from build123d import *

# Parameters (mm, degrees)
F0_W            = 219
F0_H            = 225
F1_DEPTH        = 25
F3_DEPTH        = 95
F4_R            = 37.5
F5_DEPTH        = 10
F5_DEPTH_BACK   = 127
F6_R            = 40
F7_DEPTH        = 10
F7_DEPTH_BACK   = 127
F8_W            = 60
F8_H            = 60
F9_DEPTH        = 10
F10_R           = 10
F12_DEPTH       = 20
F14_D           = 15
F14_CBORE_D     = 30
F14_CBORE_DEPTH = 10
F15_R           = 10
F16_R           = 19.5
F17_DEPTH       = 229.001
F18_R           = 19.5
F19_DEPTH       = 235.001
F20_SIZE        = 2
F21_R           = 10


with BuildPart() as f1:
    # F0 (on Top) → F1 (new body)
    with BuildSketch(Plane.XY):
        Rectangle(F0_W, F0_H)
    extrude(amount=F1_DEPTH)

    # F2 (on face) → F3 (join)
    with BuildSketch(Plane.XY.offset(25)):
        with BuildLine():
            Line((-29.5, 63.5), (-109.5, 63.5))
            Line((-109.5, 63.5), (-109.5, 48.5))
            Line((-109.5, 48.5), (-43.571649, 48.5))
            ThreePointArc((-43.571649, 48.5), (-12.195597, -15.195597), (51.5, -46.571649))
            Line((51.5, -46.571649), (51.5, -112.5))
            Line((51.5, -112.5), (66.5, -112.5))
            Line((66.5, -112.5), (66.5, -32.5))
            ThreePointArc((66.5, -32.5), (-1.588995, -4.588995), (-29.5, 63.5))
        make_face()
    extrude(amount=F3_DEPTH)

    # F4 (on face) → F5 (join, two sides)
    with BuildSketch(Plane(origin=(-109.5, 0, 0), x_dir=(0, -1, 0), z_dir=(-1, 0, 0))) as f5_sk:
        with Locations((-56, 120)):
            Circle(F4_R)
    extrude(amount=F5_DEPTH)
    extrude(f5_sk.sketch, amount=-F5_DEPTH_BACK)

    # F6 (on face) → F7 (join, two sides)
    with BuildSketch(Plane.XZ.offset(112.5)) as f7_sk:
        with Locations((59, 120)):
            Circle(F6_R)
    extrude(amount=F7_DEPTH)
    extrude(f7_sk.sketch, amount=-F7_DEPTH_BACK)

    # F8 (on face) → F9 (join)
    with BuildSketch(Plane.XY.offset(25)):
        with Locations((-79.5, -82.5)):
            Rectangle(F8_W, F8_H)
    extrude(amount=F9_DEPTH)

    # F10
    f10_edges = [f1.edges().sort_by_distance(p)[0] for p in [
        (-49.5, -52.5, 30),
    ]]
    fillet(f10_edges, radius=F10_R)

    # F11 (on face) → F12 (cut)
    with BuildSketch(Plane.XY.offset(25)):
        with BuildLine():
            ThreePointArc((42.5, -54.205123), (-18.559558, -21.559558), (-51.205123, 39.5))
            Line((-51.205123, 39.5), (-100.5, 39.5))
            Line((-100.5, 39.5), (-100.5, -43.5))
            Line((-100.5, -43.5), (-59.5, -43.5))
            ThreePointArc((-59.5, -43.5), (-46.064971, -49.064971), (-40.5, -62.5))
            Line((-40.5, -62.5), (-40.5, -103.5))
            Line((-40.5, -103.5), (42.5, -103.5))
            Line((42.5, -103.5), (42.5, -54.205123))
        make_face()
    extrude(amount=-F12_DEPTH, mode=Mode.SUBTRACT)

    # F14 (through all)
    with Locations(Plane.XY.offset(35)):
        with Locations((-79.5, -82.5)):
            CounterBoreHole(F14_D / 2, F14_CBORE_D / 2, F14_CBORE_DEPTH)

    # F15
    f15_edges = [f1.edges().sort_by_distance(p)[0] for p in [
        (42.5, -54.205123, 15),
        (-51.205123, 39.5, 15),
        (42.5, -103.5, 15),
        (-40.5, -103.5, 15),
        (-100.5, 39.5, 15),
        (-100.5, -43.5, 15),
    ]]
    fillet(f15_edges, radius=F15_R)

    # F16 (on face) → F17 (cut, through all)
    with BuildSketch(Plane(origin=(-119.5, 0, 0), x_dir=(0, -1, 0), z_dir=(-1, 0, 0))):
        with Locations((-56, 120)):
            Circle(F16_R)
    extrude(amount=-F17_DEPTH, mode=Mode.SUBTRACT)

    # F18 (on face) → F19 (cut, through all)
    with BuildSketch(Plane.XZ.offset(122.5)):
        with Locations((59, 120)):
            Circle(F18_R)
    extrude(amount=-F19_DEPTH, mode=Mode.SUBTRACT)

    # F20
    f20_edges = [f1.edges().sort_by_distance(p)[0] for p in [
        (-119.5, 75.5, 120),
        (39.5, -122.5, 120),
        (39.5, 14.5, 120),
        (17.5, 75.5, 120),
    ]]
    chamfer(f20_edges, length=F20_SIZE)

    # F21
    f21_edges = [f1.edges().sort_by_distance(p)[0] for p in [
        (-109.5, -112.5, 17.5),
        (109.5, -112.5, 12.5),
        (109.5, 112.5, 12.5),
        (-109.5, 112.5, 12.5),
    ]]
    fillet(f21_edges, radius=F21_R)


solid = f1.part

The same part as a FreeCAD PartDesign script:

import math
import FreeCAD as App
import Part
import Sketcher
Q = App.Units.Quantity


def edges_at(feature, points):
    """Names of the edges that pass closest to the given points."""
    edges = feature.Shape.Edges
    near = lambda p: min(range(len(edges)), key=lambda i: edges[i].distToShape(Part.Vertex(*p))[0])
    return sorted({f"Edge{near(p) + 1}" for p in points})

doc = App.newDocument("Part")
body = doc.addObject("PartDesign::Body", "Body")

# Sketch on XY plane
sketch1 = body.newObject("Sketcher::SketchObject", "Sketch")
sketch1.AttachmentSupport = (doc.getObject("XY_Plane"), [""])
sketch1.MapMode = "FlatFace"
sketch1.addGeometry(Part.LineSegment(App.Vector(-109.5, 112.5, 0), App.Vector(-109.5, -112.5, 0)), False)
sketch1.addGeometry(Part.LineSegment(App.Vector(-109.5, -112.5, 0), App.Vector(109.5, -112.5, 0)), False)
sketch1.addGeometry(Part.LineSegment(App.Vector(109.5, -112.5, 0), App.Vector(109.5, 112.5, 0)), False)
sketch1.addGeometry(Part.LineSegment(App.Vector(109.5, 112.5, 0), App.Vector(-109.5, 112.5, 0)), False)
sketch1.addConstraint(Sketcher.Constraint("Coincident", 0, 2, 1, 1))
sketch1.addConstraint(Sketcher.Constraint("Coincident", 1, 2, 2, 1))
sketch1.addConstraint(Sketcher.Constraint("Coincident", 2, 2, 3, 1))
sketch1.addConstraint(Sketcher.Constraint("Coincident", 3, 2, 0, 1))
sketch1.addConstraint(Sketcher.Constraint("Vertical", 0))
sketch1.addConstraint(Sketcher.Constraint("Horizontal", 1))
sketch1.addConstraint(Sketcher.Constraint("Vertical", 2))
sketch1.addConstraint(Sketcher.Constraint("Horizontal", 3))
sketch1.addConstraint(Sketcher.Constraint("Symmetric", 0, 2, 2, 2, -1, 1))
sketch1.addConstraint(Sketcher.Constraint("DistanceX", 1, 1, 1, 2, Q("219 mm")))
sketch1.addConstraint(Sketcher.Constraint("DistanceY", 0, 2, 0, 1, Q("225 mm")))
pad1 = body.newObject("PartDesign::Pad", "Pad")
pad1.Profile = sketch1
pad1.Length = 25

# Sketch on XY plane
sketch2 = body.newObject("Sketcher::SketchObject", "Sketch001")
sketch2.AttachmentSupport = (doc.getObject("XY_Plane"), [""])
sketch2.MapMode = "FlatFace"
sketch2.AttachmentOffset = App.Placement(App.Vector(0, 0, 25), App.Rotation())
sketch2.addGeometry(Part.LineSegment(App.Vector(-29.5, 63.5, 0), App.Vector(-109.5, 63.5, 0)), False)
sketch2.addGeometry(Part.LineSegment(App.Vector(-109.5, 63.5, 0), App.Vector(-109.5, 48.5, 0)), False)
sketch2.addGeometry(Part.LineSegment(App.Vector(-109.5, 48.5, 0), App.Vector(-43.571649, 48.5, 0)), False)
sketch2.addGeometry(Part.ArcOfCircle(Part.Circle(App.Vector(65.80033, 62.80033, 0), App.Vector(0, 0, 1), 110.302897), math.radians(-172.550863), math.radians(-97.449137)), False)
sketch2.addGeometry(Part.LineSegment(App.Vector(51.5, -46.571649, 0), App.Vector(51.5, -112.5, 0)), False)
sketch2.addGeometry(Part.LineSegment(App.Vector(51.5, -112.5, 0), App.Vector(66.5, -112.5, 0)), False)
sketch2.addGeometry(Part.LineSegment(App.Vector(66.5, -112.5, 0), App.Vector(66.5, -32.5, 0)), False)
sketch2.addGeometry(Part.ArcOfCircle(Part.Circle(App.Vector(65.800332, 62.800332, 0), App.Vector(0, 0, 1), 95.302901), math.radians(179.579358), math.radians(270.420642)), False)
sketch2.addConstraint(Sketcher.Constraint("Coincident", 0, 2, 1, 1))
sketch2.addConstraint(Sketcher.Constraint("Coincident", 1, 2, 2, 1))
sketch2.addConstraint(Sketcher.Constraint("Coincident", 2, 2, 3, 1))
sketch2.addConstraint(Sketcher.Constraint("Coincident", 3, 2, 4, 1))
sketch2.addConstraint(Sketcher.Constraint("Coincident", 4, 2, 5, 1))
sketch2.addConstraint(Sketcher.Constraint("Coincident", 5, 2, 6, 1))
sketch2.addConstraint(Sketcher.Constraint("Coincident", 6, 2, 7, 2))
sketch2.addConstraint(Sketcher.Constraint("Coincident", 7, 1, 0, 1))
sketch2.addConstraint(Sketcher.Constraint("Horizontal", 0))
sketch2.addConstraint(Sketcher.Constraint("Vertical", 1))
sketch2.addConstraint(Sketcher.Constraint("Horizontal", 2))
sketch2.addConstraint(Sketcher.Constraint("Vertical", 4))
sketch2.addConstraint(Sketcher.Constraint("Horizontal", 5))
sketch2.addConstraint(Sketcher.Constraint("Vertical", 6))
sketch2.addConstraint(Sketcher.Constraint("Coincident", 7, 3, 3, 3))
sketch2.addConstraint(Sketcher.Constraint("Equal", 5, 1))
sketch2.addConstraint(Sketcher.Constraint("Equal", 2, 4))
sketch2.addConstraint(Sketcher.Constraint("Equal", 0, 6))
sketch2.addConstraint(Sketcher.Constraint("DistanceX", 0, 2, 0, 1, Q("80 mm")))
sketch2.addConstraint(Sketcher.Constraint("DistanceX", 5, 1, 5, 2, Q("15 mm")))
sketch2.addConstraint(Sketcher.Constraint("DistanceX", 1, 2, 3, 2, Q("161 mm")))
sketch2.addConstraint(Sketcher.Constraint("DistanceX", 0, 2, -1, 1, Q("109.5 mm")))
sketch2.addConstraint(Sketcher.Constraint("DistanceY", -1, 1, 0, 2, Q("63.5 mm")))
sketch2.addConstraint(Sketcher.Constraint("Radius", 7, Q("95.302901 mm")))
sketch2.addConstraint(Sketcher.Constraint("Radius", 3, Q("110.302897 mm")))
pad2 = body.newObject("PartDesign::Pad", "Pad001")
pad2.Profile = sketch2
pad2.Length = 95

# Sketch on YZ plane
sketch3 = body.newObject("Sketcher::SketchObject", "Sketch002")
sketch3.AttachmentSupport = (doc.getObject("YZ_Plane"), [""])
sketch3.MapMode = "FlatFace"
sketch3.AttachmentOffset = App.Placement(App.Vector(0, 0, -109.5), App.Rotation())
sketch3.addGeometry(Part.Circle(App.Vector(56, 120, 0), App.Vector(0, 0, 1), 37.5), False)
sketch3.addConstraint(Sketcher.Constraint("Diameter", 0, Q("75 mm")))
sketch3.addConstraint(Sketcher.Constraint("DistanceX", -1, 1, 0, 3, Q("56 mm")))
sketch3.addConstraint(Sketcher.Constraint("DistanceY", -1, 1, 0, 3, Q("120 mm")))
pad3 = body.newObject("PartDesign::Pad", "Pad002")
pad3.Profile = sketch3
pad3.Type = "TwoLengths"
pad3.Length = 10
pad3.Length2 = 127
pad3.Reversed = True

# Sketch on XZ plane
sketch4 = body.newObject("Sketcher::SketchObject", "Sketch003")
sketch4.AttachmentSupport = (doc.getObject("XZ_Plane"), [""])
sketch4.MapMode = "FlatFace"
sketch4.AttachmentOffset = App.Placement(App.Vector(0, 0, 112.5), App.Rotation())
sketch4.addGeometry(Part.Circle(App.Vector(59, 120, 0), App.Vector(0, 0, 1), 40), False)
sketch4.addConstraint(Sketcher.Constraint("Diameter", 0, Q("80 mm")))
sketch4.addConstraint(Sketcher.Constraint("DistanceX", -1, 1, 0, 3, Q("59 mm")))
sketch4.addConstraint(Sketcher.Constraint("DistanceY", -1, 1, 0, 3, Q("120 mm")))
pad4 = body.newObject("PartDesign::Pad", "Pad003")
pad4.Profile = sketch4
pad4.Type = "TwoLengths"
pad4.Length = 10
pad4.Length2 = 127

# Sketch on XY plane
sketch5 = body.newObject("Sketcher::SketchObject", "Sketch004")
sketch5.AttachmentSupport = (doc.getObject("XY_Plane"), [""])
sketch5.MapMode = "FlatFace"
sketch5.AttachmentOffset = App.Placement(App.Vector(0, 0, 25), App.Rotation())
sketch5.addGeometry(Part.LineSegment(App.Vector(-109.5, -52.5, 0), App.Vector(-109.5, -112.5, 0)), False)
sketch5.addGeometry(Part.LineSegment(App.Vector(-109.5, -112.5, 0), App.Vector(-49.5, -112.5, 0)), False)
sketch5.addGeometry(Part.LineSegment(App.Vector(-49.5, -112.5, 0), App.Vector(-49.5, -52.5, 0)), False)
sketch5.addGeometry(Part.LineSegment(App.Vector(-49.5, -52.5, 0), App.Vector(-109.5, -52.5, 0)), False)
sketch5.addConstraint(Sketcher.Constraint("Coincident", 0, 2, 1, 1))
sketch5.addConstraint(Sketcher.Constraint("Coincident", 1, 2, 2, 1))
sketch5.addConstraint(Sketcher.Constraint("Coincident", 2, 2, 3, 1))
sketch5.addConstraint(Sketcher.Constraint("Coincident", 3, 2, 0, 1))
sketch5.addConstraint(Sketcher.Constraint("Vertical", 0))
sketch5.addConstraint(Sketcher.Constraint("Horizontal", 1))
sketch5.addConstraint(Sketcher.Constraint("Vertical", 2))
sketch5.addConstraint(Sketcher.Constraint("Horizontal", 3))
sketch5.addConstraint(Sketcher.Constraint("Equal", 3, 0))
sketch5.addConstraint(Sketcher.Constraint("DistanceX", 1, 1, 1, 2, Q("60 mm")))
sketch5.addConstraint(Sketcher.Constraint("DistanceX", 0, 2, -1, 1, Q("109.5 mm")))
sketch5.addConstraint(Sketcher.Constraint("DistanceY", 0, 2, -1, 1, Q("112.5 mm")))
pad5 = body.newObject("PartDesign::Pad", "Pad004")
pad5.Profile = sketch5
pad5.Length = 10
doc.recompute()

fillet = body.newObject("PartDesign::Fillet", "Fillet")
fillet.Base = (pad5, edges_at(pad5, [(-49.5, -52.5, 30)]))
fillet.Radius = 10

# Sketch on XY plane
sketch6 = body.newObject("Sketcher::SketchObject", "Sketch005")
sketch6.AttachmentSupport = (doc.getObject("XY_Plane"), [""])
sketch6.MapMode = "FlatFace"
sketch6.AttachmentOffset = App.Placement(App.Vector(0, 0, 25), App.Rotation())
sketch6.addGeometry(Part.ArcOfCircle(Part.Circle(App.Vector(65.80033, 62.80033, 0), App.Vector(0, 0, 1), 119.302898), math.radians(-168.737519), math.radians(-101.262481)), False)
sketch6.addGeometry(Part.LineSegment(App.Vector(-51.205123, 39.5, 0), App.Vector(-100.5, 39.5, 0)), False)
sketch6.addGeometry(Part.LineSegment(App.Vector(-100.5, 39.5, 0), App.Vector(-100.5, -43.5, 0)), False)
sketch6.addGeometry(Part.LineSegment(App.Vector(-100.5, -43.5, 0), App.Vector(-59.5, -43.5, 0)), False)
sketch6.addGeometry(Part.ArcOfCircle(Part.Circle(App.Vector(-59.499999, -62.499999, 0), App.Vector(0, 0, 1), 18.999999), math.radians(-0.000002), math.radians(90.000002)), False)
sketch6.addGeometry(Part.LineSegment(App.Vector(-40.5, -62.5, 0), App.Vector(-40.5, -103.5, 0)), False)
sketch6.addGeometry(Part.LineSegment(App.Vector(-40.5, -103.5, 0), App.Vector(42.5, -103.5, 0)), False)
sketch6.addGeometry(Part.LineSegment(App.Vector(42.5, -103.5, 0), App.Vector(42.5, -54.205123, 0)), False)
sketch6.addConstraint(Sketcher.Constraint("Coincident", 0, 1, 1, 1))
sketch6.addConstraint(Sketcher.Constraint("Coincident", 1, 2, 2, 1))
sketch6.addConstraint(Sketcher.Constraint("Coincident", 2, 2, 3, 1))
sketch6.addConstraint(Sketcher.Constraint("Tangent", 3, 2, 4, 2))
sketch6.addConstraint(Sketcher.Constraint("Tangent", 4, 1, 5, 1))
sketch6.addConstraint(Sketcher.Constraint("Coincident", 5, 2, 6, 1))
sketch6.addConstraint(Sketcher.Constraint("Coincident", 6, 2, 7, 1))
sketch6.addConstraint(Sketcher.Constraint("Coincident", 7, 2, 0, 2))
sketch6.addConstraint(Sketcher.Constraint("Horizontal", 1))
sketch6.addConstraint(Sketcher.Constraint("Vertical", 2))
sketch6.addConstraint(Sketcher.Constraint("Horizontal", 3))
sketch6.addConstraint(Sketcher.Constraint("Vertical", 5))
sketch6.addConstraint(Sketcher.Constraint("Horizontal", 6))
sketch6.addConstraint(Sketcher.Constraint("Vertical", 7))
sketch6.addConstraint(Sketcher.Constraint("Equal", 6, 2))
sketch6.addConstraint(Sketcher.Constraint("Equal", 3, 5))
sketch6.addConstraint(Sketcher.Constraint("Equal", 1, 7))
sketch6.addConstraint(Sketcher.Constraint("Radius", 4, Q("18.999999 mm")))
sketch6.addConstraint(Sketcher.Constraint("DistanceX", 3, 1, 3, 2, Q("41 mm")))
sketch6.addConstraint(Sketcher.Constraint("DistanceX", 6, 1, 6, 2, Q("83 mm")))
sketch6.addConstraint(Sketcher.Constraint("DistanceX", 4, 3, -1, 1, Q("59.499999 mm")))
sketch6.addConstraint(Sketcher.Constraint("DistanceY", 4, 3, -1, 1, Q("62.499999 mm")))
sketch6.addConstraint(Sketcher.Constraint("Radius", 0, Q("119.302898 mm")))
sketch6.addConstraint(Sketcher.Constraint("DistanceX", 1, 2, 1, 1, Q("49.294877 mm")))
pocket1 = body.newObject("PartDesign::Pocket", "Pocket")
pocket1.Profile = sketch6
pocket1.Length = 20

# Sketch on XY plane
sketch7 = body.newObject("Sketcher::SketchObject", "Sketch006")
sketch7.AttachmentSupport = (doc.getObject("XY_Plane"), [""])
sketch7.MapMode = "FlatFace"
sketch7.AttachmentOffset = App.Placement(App.Vector(0, 0, 35), App.Rotation())
sketch7.addGeometry(Part.Circle(App.Vector(-79.5, -82.5, 0), App.Vector(0, 0, 1), 7.5), False)
sketch7.addConstraint(Sketcher.Constraint("Diameter", 0, Q("15 mm")))
sketch7.addConstraint(Sketcher.Constraint("DistanceX", 0, 3, -1, 1, Q("79.5 mm")))
sketch7.addConstraint(Sketcher.Constraint("DistanceY", 0, 3, -1, 1, Q("82.5 mm")))
doc.recompute()
hole = body.newObject("PartDesign::Hole", "Hole")
hole.Profile = sketch7
hole.ThreadType = "None"
hole.Diameter = 15
hole.DepthType = "ThroughAll"
hole.HoleCutType = "Counterbore"
hole.HoleCutDiameter = 30
hole.HoleCutDepth = 10
doc.recompute()

fillet2 = body.newObject("PartDesign::Fillet", "Fillet001")
fillet2.Base = (hole, edges_at(hole, [
    (42.5, -54.205, 15),
    (-51.205, 39.5, 15),
    (42.5, -103.5, 15),
    (-40.5, -103.5, 15),
    (-100.5, 39.5, 15),
    (-100.5, -43.5, 15),
]))
fillet2.Radius = 10

# Sketch on YZ plane
sketch8 = body.newObject("Sketcher::SketchObject", "Sketch007")
sketch8.AttachmentSupport = (doc.getObject("YZ_Plane"), [""])
sketch8.MapMode = "FlatFace"
sketch8.AttachmentOffset = App.Placement(App.Vector(0, 0, -119.5), App.Rotation())
sketch8.addGeometry(Part.Circle(App.Vector(56, 120, 0), App.Vector(0, 0, 1), 19.5), False)
sketch8.addConstraint(Sketcher.Constraint("Diameter", 0, Q("39 mm")))
sketch8.addConstraint(Sketcher.Constraint("DistanceX", -1, 1, 0, 3, Q("56 mm")))
sketch8.addConstraint(Sketcher.Constraint("DistanceY", -1, 1, 0, 3, Q("120 mm")))
pocket2 = body.newObject("PartDesign::Pocket", "Pocket001")
pocket2.Profile = sketch8
pocket2.Type = "ThroughAll"
pocket2.Reversed = True

# Sketch on XZ plane
sketch9 = body.newObject("Sketcher::SketchObject", "Sketch008")
sketch9.AttachmentSupport = (doc.getObject("XZ_Plane"), [""])
sketch9.MapMode = "FlatFace"
sketch9.AttachmentOffset = App.Placement(App.Vector(0, 0, 122.5), App.Rotation())
sketch9.addGeometry(Part.Circle(App.Vector(59, 120, 0), App.Vector(0, 0, 1), 19.5), False)
sketch9.addConstraint(Sketcher.Constraint("Diameter", 0, Q("39 mm")))
sketch9.addConstraint(Sketcher.Constraint("DistanceX", -1, 1, 0, 3, Q("59 mm")))
sketch9.addConstraint(Sketcher.Constraint("DistanceY", -1, 1, 0, 3, Q("120 mm")))
pocket3 = body.newObject("PartDesign::Pocket", "Pocket002")
pocket3.Profile = sketch9
pocket3.Type = "ThroughAll"
doc.recompute()

chamfer = body.newObject("PartDesign::Chamfer", "Chamfer")
chamfer.Base = (pocket3, edges_at(pocket3, [
    (-119.5, 75.5, 120),
    (39.5, -122.5, 120),
    (39.5, 14.5, 120),
    (17.5, 75.5, 120),
]))
chamfer.Size = 2
doc.recompute()

fillet3 = body.newObject("PartDesign::Fillet", "Fillet002")
fillet3.Base = (chamfer, edges_at(chamfer, [
    (-109.5, -112.5, 17.5),
    (109.5, -112.5, 12.5),
    (109.5, 112.5, 12.5),
    (-109.5, 112.5, 12.5),
]))
fillet3.Radius = 10

doc.recompute()
